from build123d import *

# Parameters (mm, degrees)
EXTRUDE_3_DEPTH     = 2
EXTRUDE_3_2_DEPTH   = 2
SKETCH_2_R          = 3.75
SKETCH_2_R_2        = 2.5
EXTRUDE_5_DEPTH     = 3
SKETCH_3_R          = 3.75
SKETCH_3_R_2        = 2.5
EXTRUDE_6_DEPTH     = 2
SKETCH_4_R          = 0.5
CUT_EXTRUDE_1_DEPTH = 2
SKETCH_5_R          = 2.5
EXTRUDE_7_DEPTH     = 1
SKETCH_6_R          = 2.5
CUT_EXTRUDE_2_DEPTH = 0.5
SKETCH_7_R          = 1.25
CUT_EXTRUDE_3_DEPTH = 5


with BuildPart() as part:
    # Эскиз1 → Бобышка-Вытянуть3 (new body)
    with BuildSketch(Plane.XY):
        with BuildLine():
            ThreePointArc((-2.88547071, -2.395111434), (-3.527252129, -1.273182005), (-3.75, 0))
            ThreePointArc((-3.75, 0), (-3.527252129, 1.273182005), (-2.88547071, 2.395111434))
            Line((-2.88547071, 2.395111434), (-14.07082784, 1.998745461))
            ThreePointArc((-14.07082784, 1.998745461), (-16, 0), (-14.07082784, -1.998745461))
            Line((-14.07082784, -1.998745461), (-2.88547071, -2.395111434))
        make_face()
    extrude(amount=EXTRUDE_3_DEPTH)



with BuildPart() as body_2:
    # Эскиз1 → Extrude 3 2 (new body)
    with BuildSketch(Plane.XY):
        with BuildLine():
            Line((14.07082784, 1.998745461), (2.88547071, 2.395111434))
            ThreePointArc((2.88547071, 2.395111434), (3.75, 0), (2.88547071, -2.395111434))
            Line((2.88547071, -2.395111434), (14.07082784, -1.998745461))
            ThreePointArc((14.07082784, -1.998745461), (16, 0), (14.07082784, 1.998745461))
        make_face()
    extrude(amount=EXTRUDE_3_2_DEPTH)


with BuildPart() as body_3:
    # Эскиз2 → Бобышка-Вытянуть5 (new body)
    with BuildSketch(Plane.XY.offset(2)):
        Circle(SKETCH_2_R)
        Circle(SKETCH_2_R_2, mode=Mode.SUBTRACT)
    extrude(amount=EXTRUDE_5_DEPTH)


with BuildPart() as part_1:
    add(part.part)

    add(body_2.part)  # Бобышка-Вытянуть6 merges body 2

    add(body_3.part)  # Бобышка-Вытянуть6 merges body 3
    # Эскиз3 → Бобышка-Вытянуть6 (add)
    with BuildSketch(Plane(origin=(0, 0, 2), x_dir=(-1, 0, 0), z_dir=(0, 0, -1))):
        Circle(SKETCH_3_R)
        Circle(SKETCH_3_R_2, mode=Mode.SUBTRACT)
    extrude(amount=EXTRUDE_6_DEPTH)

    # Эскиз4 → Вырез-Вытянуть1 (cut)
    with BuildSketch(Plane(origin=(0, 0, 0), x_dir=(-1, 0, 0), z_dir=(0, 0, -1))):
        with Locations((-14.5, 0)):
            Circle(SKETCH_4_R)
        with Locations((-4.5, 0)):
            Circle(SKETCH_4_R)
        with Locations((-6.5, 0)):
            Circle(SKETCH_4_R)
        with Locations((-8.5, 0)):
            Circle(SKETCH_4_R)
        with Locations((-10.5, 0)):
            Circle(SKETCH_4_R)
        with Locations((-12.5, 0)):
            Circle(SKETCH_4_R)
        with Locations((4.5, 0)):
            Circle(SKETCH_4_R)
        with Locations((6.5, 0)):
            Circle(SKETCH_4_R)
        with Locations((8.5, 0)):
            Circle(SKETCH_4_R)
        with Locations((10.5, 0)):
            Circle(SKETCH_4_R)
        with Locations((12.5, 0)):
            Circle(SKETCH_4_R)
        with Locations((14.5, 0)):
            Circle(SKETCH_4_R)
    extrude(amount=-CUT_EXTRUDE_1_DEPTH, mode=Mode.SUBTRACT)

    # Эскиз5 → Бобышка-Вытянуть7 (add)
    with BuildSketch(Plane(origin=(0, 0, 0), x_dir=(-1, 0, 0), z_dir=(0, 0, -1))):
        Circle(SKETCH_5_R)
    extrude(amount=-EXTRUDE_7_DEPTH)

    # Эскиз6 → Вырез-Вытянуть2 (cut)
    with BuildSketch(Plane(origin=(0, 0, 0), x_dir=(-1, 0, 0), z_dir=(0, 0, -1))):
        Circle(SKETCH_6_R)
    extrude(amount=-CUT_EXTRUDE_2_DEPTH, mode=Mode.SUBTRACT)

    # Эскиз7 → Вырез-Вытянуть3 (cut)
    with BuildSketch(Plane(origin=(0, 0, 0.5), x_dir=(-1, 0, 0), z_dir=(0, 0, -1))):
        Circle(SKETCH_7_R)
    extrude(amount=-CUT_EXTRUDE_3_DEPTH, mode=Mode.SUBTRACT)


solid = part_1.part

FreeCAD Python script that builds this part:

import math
import FreeCAD as App
import Part
import Sketcher

V = App.Vector

doc = App.newDocument("Part")
params = doc.addObject("Spreadsheet::Sheet", "Params")
for row, (alias, value) in enumerate([
    ("sketch1_radius", "2 mm"),
    ("sketch1_radius2", "3.75 mm"),
    ("pad1_length", "2 mm"),
    ("sketch2_radius", "2 mm"),
    ("sketch2_radius2", "3.75 mm"),
    ("pad2_length", "2 mm"),
    ("sketch3_diameter", "5 mm"),
    ("sketch3_diameter2", "7.5 mm"),
    ("pad3_length", "3 mm"),
    ("sketch4_diameter", "5 mm"),
    ("sketch4_diameter2", "7.5 mm"),
    ("pad4_length", "2 mm"),
    ("sketch5_diameter", "1 mm"),
    ("pocket1_length", "2 mm"),
    ("sketch6_diameter", "5 mm"),
    ("pad5_length", "1 mm"),
    ("sketch7_diameter", "5 mm"),
    ("pocket2_length", "0.5 mm"),
    ("sketch8_diameter", "2.5 mm"),
    ("pocket3_length", "5 mm"),
], start=1):
    params.set(f"A{row}", alias)
    params.set(f"B{row}", "=" + value)
    params.setAlias(f"B{row}", alias)

body = doc.addObject("PartDesign::Body", "Body")

sketch1 = body.newObject("Sketcher::SketchObject", "Sketch")
sketch1.AttachmentSupport = (doc.getObject("XY_Plane"), [""])
sketch1.MapMode = "FlatFace"
sketch1.addGeometry([
    Part.ArcOfCircle(Part.Circle(V(0, 0, 0), V(0, 0, 1), 3.8), math.radians(180), math.radians(220)),
    Part.ArcOfCircle(Part.Circle(V(0, 0, 0), V(0, 0, 1), 3.8), math.radians(140), math.radians(180)),
    Part.LineSegment(V(-2.9, 2.4, 0), V(-14.1, 2, 0)),
    Part.ArcOfCircle(Part.Circle(V(-14, 0, 0), V(0, 0, 1), 2), math.radians(92), math.radians(268)),
    Part.LineSegment(V(-14.1, -2, 0), V(-2.9, -2.4, 0)),
], False)
sketch1.addConstraint([
    Sketcher.Constraint("Tangent", 0, 1, 1, 2),
    Sketcher.Constraint("Coincident", 1, 1, 2, 1),
    Sketcher.Constraint("Tangent", 2, 2, 3, 1),
    Sketcher.Constraint("Tangent", 3, 2, 4, 1),
    Sketcher.Constraint("Coincident", 4, 2, 0, 2),
    Sketcher.Constraint("Coincident", 0, 3, -1, 1),
    Sketcher.Constraint("Equal", 0, 1),
    Sketcher.Constraint("Symmetric", 2, 2, 3, 2, -1),
    Sketcher.Constraint("PointOnObject", 0, 1, -1),
    Sketcher.Constraint("Radius", 3, 2.0),
    Sketcher.Constraint("Radius", 0, 3.75),
    Sketcher.Constraint("DistanceX", 3, 3, -1, 1, 14.0),
    Sketcher.Constraint("DistanceX", 1, 1, -1, 1, 2.885471),
])
sketch1.setExpression("Constraints[9]", "Params.sketch1_radius")
sketch1.setExpression("Constraints[10]", "Params.sketch1_radius2")
pad1 = body.newObject("PartDesign::Pad", "Pad")
pad1.Profile = sketch1
pad1.setExpression("Length", "Params.pad1_length")
body2 = doc.addObject("PartDesign::Body", "Body001")

sketch2 = body2.newObject("Sketcher::SketchObject", "Sketch001")
sketch2.AttachmentSupport = (doc.getObject("XY_Plane001"), [""])
sketch2.MapMode = "FlatFace"
sketch2.addGeometry([
    Part.LineSegment(V(14.1, 2, 0), V(2.9, 2.4, 0)),
    Part.ArcOfCircle(Part.Circle(V(0, 0, 0), V(0, 0, 1), 3.8), math.radians(-40), math.radians(40)),
    Part.LineSegment(V(2.9, -2.4, 0), V(14.1, -2, 0)),
    Part.ArcOfCircle(Part.Circle(V(14, 0, 0), V(0, 0, 1), 2), math.radians(-88), math.radians(88)),
], False)
sketch2.addConstraint([
    Sketcher.Constraint("Coincident", 0, 2, 1, 2),
    Sketcher.Constraint("Coincident", 1, 1, 2, 1),
    Sketcher.Constraint("Tangent", 2, 2, 3, 1),
    Sketcher.Constraint("Tangent", 3, 2, 0, 1),
    Sketcher.Constraint("Coincident", 1, 3, -1, 1),
    Sketcher.Constraint("Symmetric", 2, 2, 3, 2, -1),
    Sketcher.Constraint("Radius", 3, 2.0),
    Sketcher.Constraint("Radius", 1, 3.75),
    Sketcher.Constraint("DistanceX", -1, 1, 3, 3, 14.0),
    Sketcher.Constraint("DistanceX", -1, 1, 0, 2, 2.885471),
])
sketch2.setExpression("Constraints[6]", "Params.sketch2_radius")
sketch2.setExpression("Constraints[7]", "Params.sketch2_radius2")
pad2 = body2.newObject("PartDesign::Pad", "Pad001")
pad2.Profile = sketch2
pad2.setExpression("Length", "Params.pad2_length")
body3 = doc.addObject("PartDesign::Body", "Body002")

sketch3 = body3.newObject("Sketcher::SketchObject", "Sketch002")
sketch3.AttachmentSupport = (doc.getObject("XY_Plane002"), [""])
sketch3.MapMode = "FlatFace"
sketch3.AttachmentOffset = App.Placement(V(0, 0, 2), App.Rotation())
sketch3.addGeometry([
    Part.Circle(V(0, 0, 0), V(0, 0, 1), 3.8),
    Part.Circle(V(0, 0, 0), V(0, 0, 1), 2.5),
], False)
sketch3.addConstraint([
    Sketcher.Constraint("Coincident", 0, 3, -1, 1),
    Sketcher.Constraint("Coincident", 1, 3, -1, 1),
    Sketcher.Constraint("Diameter", 1, 5.0),
    Sketcher.Constraint("Diameter", 0, 7.5),
])
sketch3.setExpression("Constraints[2]", "Params.sketch3_diameter")
sketch3.setExpression("Constraints[3]", "Params.sketch3_diameter2")
pad3 = body3.newObject("PartDesign::Pad", "Pad002")
pad3.Profile = sketch3
pad3.setExpression("Length", "Params.pad3_length")
body.AllowCompound = True
doc.recompute()

boolean = body.newObject("PartDesign::Boolean", "Boolean")
boolean.Type = "Fuse"
boolean.addObjects([body2])
doc.recompute()

boolean2 = body.newObject("PartDesign::Boolean", "Boolean001")
boolean2.Type = "Fuse"
boolean2.addObjects([body3])

sketch4 = body.newObject("Sketcher::SketchObject", "Sketch003")
sketch4.AttachmentSupport = (doc.getObject("XY_Plane"), [""])
sketch4.MapMode = "FlatFace"
sketch4.AttachmentOffset = App.Placement(V(0, 0, 2), App.Rotation())
sketch4.addGeometry([
    Part.Circle(V(0, 0, 0), V(0, 0, 1), 3.8),
    Part.Circle(V(0, 0, 0), V(0, 0, 1), 2.5),
], False)
sketch4.addConstraint([
    Sketcher.Constraint("Coincident", 0, 3, -1, 1),
    Sketcher.Constraint("Coincident", 1, 3, -1, 1),
    Sketcher.Constraint("Diameter", 1, 5.0),
    Sketcher.Constraint("Diameter", 0, 7.5),
])
sketch4.setExpression("Constraints[2]", "Params.sketch4_diameter")
sketch4.setExpression("Constraints[3]", "Params.sketch4_diameter2")
pad4 = body.newObject("PartDesign::Pad", "Pad003")
pad4.Profile = sketch4
pad4.setExpression("Length", "Params.pad4_length")
pad4.Reversed = True

sketch5 = body.newObject("Sketcher::SketchObject", "Sketch004")
sketch5.AttachmentSupport = (doc.getObject("XY_Plane"), [""])
sketch5.MapMode = "FlatFace"
sketch5.addGeometry([
    Part.Circle(V(14.5, 0, 0), V(0, 0, 1), 0.5),
    Part.Circle(V(4.5, 0, 0), V(0, 0, 1), 0.5),
    Part.Circle(V(6.5, 0, 0), V(0, 0, 1), 0.5),
    Part.Circle(V(8.5, 0, 0), V(0, 0, 1), 0.5),
    Part.Circle(V(10.5, 0, 0), V(0, 0, 1), 0.5),
    Part.Circle(V(12.5, 0, 0), V(0, 0, 1), 0.5),
    Part.Circle(V(-4.5, 0, 0), V(0, 0, 1), 0.5),
    Part.Circle(V(-6.5, 0, 0), V(0, 0, 1), 0.5),
    Part.Circle(V(-8.5, 0, 0), V(0, 0, 1), 0.5),
    Part.Circle(V(-10.5, 0, 0), V(0, 0, 1), 0.5),
    Part.Circle(V(-12.5, 0, 0), V(0, 0, 1), 0.5),
    Part.Circle(V(-14.5, 0, 0), V(0, 0, 1), 0.5),
], False)
sketch5.addConstraint([
    Sketcher.Constraint("Equal", 0, 1),
    Sketcher.Constraint("Equal", 1, 2),
    Sketcher.Constraint("Equal", 2, 3),
    Sketcher.Constraint("Equal", 3, 4),
    Sketcher.Constraint("Equal", 4, 5),
    Sketcher.Constraint("Equal", 5, 6),
    Sketcher.Constraint("Equal", 6, 7),
    Sketcher.Constraint("Equal", 7, 8),
    Sketcher.Constraint("Equal", 8, 9),
    Sketcher.Constraint("Equal", 9, 10),
    Sketcher.Constraint("Equal", 10, 11),
    Sketcher.Constraint("Symmetric", 1, 3, 6, 3, -1, 1),
    Sketcher.Constraint("Symmetric", 2, 3, 7, 3, -1, 1),
    Sketcher.Constraint("Symmetric", 3, 3, 8, 3, -1, 1),
    Sketcher.Constraint("Symmetric", 4, 3, 9, 3, -1, 1),
    Sketcher.Constraint("Symmetric", 5, 3, 10, 3, -1, 1),
    Sketcher.Constraint("Symmetric", 0, 3, 11, 3, -1, 1),
    Sketcher.Constraint("PointOnObject", 0, 3, -1),
    Sketcher.Constraint("PointOnObject", 1, 3, -1),
    Sketcher.Constraint("PointOnObject", 2, 3, -1),
    Sketcher.Constraint("PointOnObject", 3, 3, -1),
    Sketcher.Constraint("PointOnObject", 4, 3, -1),
    Sketcher.Constraint("PointOnObject", 5, 3, -1),
    Sketcher.Constraint("Diameter", 0, 1.0),
    Sketcher.Constraint("DistanceX", 1, 3, 0, 3, 10.0),
    Sketcher.Constraint("DistanceX", 1, 3, 2, 3, 2.0),
    Sketcher.Constraint("DistanceX", 2, 3, 3, 3, 2.0),
    Sketcher.Constraint("DistanceX", 3, 3, 4, 3, 2.0),
    Sketcher.Constraint("DistanceX", 5, 3, 0, 3, 2.0),
    Sketcher.Constraint("DistanceX", 6, 3, 1, 3, 9.0),
])
sketch5.setExpression("Constraints[23]", "Params.sketch5_diameter")
pocket1 = body.newObject("PartDesign::Pocket", "Pocket")
pocket1.Profile = sketch5
pocket1.setExpression("Length", "Params.pocket1_length")
pocket1.Reversed = True

sketch6 = body.newObject("Sketcher::SketchObject", "Sketch005")
sketch6.AttachmentSupport = (doc.getObject("XY_Plane"), [""])
sketch6.MapMode = "FlatFace"
sketch6.addGeometry(Part.Circle(V(0, 0, 0), V(0, 0, 1), 2.5), False)
sketch6.addConstraint([
    Sketcher.Constraint("Coincident", 0, 3, -1, 1),
    Sketcher.Constraint("Diameter", 0, 5.0),
])
sketch6.setExpression("Constraints[1]", "Params.sketch6_diameter")
pad5 = body.newObject("PartDesign::Pad", "Pad004")
pad5.Profile = sketch6
pad5.setExpression("Length", "Params.pad5_length")

sketch7 = body.newObject("Sketcher::SketchObject", "Sketch006")
sketch7.AttachmentSupport = (doc.getObject("XY_Plane"), [""])
sketch7.MapMode = "FlatFace"
sketch7.addGeometry(Part.Circle(V(0, 0, 0), V(0, 0, 1), 2.5), False)
sketch7.addConstraint([
    Sketcher.Constraint("Coincident", 0, 3, -1, 1),
    Sketcher.Constraint("Diameter", 0, 5.0),
])
sketch7.setExpression("Constraints[1]", "Params.sketch7_diameter")
pocket2 = body.newObject("PartDesign::Pocket", "Pocket001")
pocket2.Profile = sketch7
pocket2.setExpression("Length", "Params.pocket2_length")
pocket2.Reversed = True

sketch8 = body.newObject("Sketcher::SketchObject", "Sketch007")
sketch8.AttachmentSupport = (doc.getObject("XY_Plane"), [""])
sketch8.MapMode = "FlatFace"
sketch8.AttachmentOffset = App.Placement(V(0, 0, 0.5), App.Rotation())
sketch8.addGeometry(Part.Circle(V(0, 0, 0), V(0, 0, 1), 1.2), False)
sketch8.addConstraint([
    Sketcher.Constraint("Coincident", 0, 3, -1, 1),
    Sketcher.Constraint("Diameter", 0, 2.5),
])
sketch8.setExpression("Constraints[1]", "Params.sketch8_diameter")
pocket3 = body.newObject("PartDesign::Pocket", "Pocket002")
pocket3.Profile = sketch8
pocket3.setExpression("Length", "Params.pocket3_length")
pocket3.Reversed = True

doc.recompute()
